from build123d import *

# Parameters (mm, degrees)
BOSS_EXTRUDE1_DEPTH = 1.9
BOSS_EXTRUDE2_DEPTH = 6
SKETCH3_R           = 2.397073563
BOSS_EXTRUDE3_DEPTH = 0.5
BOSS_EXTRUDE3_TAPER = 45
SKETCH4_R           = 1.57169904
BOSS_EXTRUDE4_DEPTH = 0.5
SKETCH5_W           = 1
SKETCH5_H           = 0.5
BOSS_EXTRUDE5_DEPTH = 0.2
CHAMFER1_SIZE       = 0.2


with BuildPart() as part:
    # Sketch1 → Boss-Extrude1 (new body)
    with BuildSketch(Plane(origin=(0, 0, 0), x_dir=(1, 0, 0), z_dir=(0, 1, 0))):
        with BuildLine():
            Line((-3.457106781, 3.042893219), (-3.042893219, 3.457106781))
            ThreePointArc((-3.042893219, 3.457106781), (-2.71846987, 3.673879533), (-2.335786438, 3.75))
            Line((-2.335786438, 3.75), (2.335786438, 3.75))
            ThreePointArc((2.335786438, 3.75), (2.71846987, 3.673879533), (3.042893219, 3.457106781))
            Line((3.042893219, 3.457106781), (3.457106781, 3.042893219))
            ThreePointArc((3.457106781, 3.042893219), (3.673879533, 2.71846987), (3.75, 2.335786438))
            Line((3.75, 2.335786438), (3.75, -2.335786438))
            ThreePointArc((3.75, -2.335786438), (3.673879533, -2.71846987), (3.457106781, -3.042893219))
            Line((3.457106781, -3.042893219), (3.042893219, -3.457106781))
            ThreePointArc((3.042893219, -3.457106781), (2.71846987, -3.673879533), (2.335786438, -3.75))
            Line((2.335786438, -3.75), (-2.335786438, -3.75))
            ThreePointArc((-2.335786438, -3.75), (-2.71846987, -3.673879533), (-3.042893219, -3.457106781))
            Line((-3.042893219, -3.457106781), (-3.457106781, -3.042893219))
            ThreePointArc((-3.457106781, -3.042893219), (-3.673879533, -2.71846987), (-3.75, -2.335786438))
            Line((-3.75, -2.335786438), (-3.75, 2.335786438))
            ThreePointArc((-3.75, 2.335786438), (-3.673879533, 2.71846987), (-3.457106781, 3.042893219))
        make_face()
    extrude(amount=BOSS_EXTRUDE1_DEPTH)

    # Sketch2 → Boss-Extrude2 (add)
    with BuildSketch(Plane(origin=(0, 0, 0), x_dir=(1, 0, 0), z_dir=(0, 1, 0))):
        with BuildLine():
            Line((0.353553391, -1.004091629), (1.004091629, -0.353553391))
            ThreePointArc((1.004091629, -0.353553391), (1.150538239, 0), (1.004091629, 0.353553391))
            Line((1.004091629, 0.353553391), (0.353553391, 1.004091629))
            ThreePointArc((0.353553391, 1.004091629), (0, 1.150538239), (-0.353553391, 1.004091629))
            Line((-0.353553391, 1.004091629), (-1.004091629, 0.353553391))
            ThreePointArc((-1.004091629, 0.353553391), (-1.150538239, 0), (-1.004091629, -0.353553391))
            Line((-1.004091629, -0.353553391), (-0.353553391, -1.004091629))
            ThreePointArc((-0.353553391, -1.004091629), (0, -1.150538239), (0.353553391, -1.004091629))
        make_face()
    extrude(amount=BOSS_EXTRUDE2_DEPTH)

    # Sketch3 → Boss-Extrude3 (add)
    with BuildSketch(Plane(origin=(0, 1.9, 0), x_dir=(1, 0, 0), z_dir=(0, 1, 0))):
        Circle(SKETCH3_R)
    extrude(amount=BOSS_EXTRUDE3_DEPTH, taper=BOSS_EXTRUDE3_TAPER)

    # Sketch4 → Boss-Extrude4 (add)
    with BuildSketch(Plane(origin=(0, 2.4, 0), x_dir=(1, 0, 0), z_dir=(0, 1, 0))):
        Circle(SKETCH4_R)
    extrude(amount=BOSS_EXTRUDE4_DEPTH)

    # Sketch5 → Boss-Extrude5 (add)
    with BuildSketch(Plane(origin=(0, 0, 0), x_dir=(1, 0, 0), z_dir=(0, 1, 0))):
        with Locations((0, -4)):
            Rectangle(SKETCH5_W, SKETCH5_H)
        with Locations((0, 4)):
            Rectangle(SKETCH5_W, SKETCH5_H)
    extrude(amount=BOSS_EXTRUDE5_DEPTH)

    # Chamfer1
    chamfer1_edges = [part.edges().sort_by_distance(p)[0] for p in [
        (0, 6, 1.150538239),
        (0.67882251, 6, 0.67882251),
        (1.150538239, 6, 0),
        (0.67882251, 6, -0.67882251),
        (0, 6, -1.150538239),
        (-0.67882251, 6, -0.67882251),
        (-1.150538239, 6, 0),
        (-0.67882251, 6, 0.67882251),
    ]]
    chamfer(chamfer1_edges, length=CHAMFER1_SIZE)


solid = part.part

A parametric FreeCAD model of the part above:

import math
import FreeCAD as App
import Part
import Sketcher
from FreeCAD import Vector
Q = App.Units.Quantity


def edges_at(feature, points):
    """Names of the edges that pass closest to the given points."""
    edges = feature.Shape.Edges
    near = lambda p: min(range(len(edges)), key=lambda i: edges[i].distToShape(Part.Vertex(*p))[0])
    return sorted({f"Edge{near(p) + 1}" for p in points})


def add_polygon(sketch, points):
    """Adds a closed chain of lines whose ends are joined by coincident constraints."""
    first, n = sketch.GeometryCount, len(points)
    for a, b in zip(points, points[1:] + points[:1]):
        sketch.addGeometry(Part.LineSegment(App.Vector(*a, 0), App.Vector(*b, 0)), False)
    for i in range(n):
        sketch.addConstraint(Sketcher.Constraint("Coincident", first + i, 2, first + (i + 1) % n, 1))

doc = App.newDocument("Part")
body = doc.addObject("PartDesign::Body", "Body")

sketch1 = body.newObject("Sketcher::SketchObject", "Sketch")
sketch1.AttachmentSupport = (doc.getObject("XZ_Plane"), [""])
sketch1.MapMode = "FlatFace"
sketch1.addGeometry([
    Part.LineSegment(Vector(-3.042893, -3.457107, 0), Vector(-3.457107, -3.042893, 0)),
    Part.ArcOfCircle(Part.Circle(Vector(-2.75, -2.335786, 0), Vector(0, 0, 1), 1), math.radians(180), math.radians(225)),
    Part.LineSegment(Vector(-3.75, -2.335786, 0), Vector(-3.75, 2.335786, 0)),
    Part.ArcOfCircle(Part.Circle(Vector(-2.75, 2.335786, 0), Vector(0, 0, 1), 1), math.radians(135), math.radians(180)),
    Part.LineSegment(Vector(-3.457107, 3.042893, 0), Vector(-3.042893, 3.457107, 0)),
    Part.ArcOfCircle(Part.Circle(Vector(-2.335786, 2.75, 0), Vector(0, 0, 1), 1), math.radians(90), math.radians(135)),
    Part.LineSegment(Vector(-2.335786, 3.75, 0), Vector(2.335786, 3.75, 0)),
    Part.ArcOfCircle(Part.Circle(Vector(2.335786, 2.75, 0), Vector(0, 0, 1), 1), math.radians(45), math.radians(90)),
    Part.LineSegment(Vector(3.042893, 3.457107, 0), Vector(3.457107, 3.042893, 0)),
    Part.ArcOfCircle(Part.Circle(Vector(2.75, 2.335786, 0), Vector(0, 0, 1), 1), math.radians(0), math.radians(45)),
    Part.LineSegment(Vector(3.75, 2.335786, 0), Vector(3.75, -2.335786, 0)),
    Part.ArcOfCircle(Part.Circle(Vector(2.75, -2.335786, 0), Vector(0, 0, 1), 1), math.radians(-45), math.radians(0)),
    Part.LineSegment(Vector(3.457107, -3.042893, 0), Vector(3.042893, -3.457107, 0)),
    Part.ArcOfCircle(Part.Circle(Vector(2.335786, -2.75, 0), Vector(0, 0, 1), 1), math.radians(-90), math.radians(-45)),
    Part.LineSegment(Vector(2.335786, -3.75, 0), Vector(-2.335786, -3.75, 0)),
    Part.ArcOfCircle(Part.Circle(Vector(-2.335786, -2.75, 0), Vector(0, 0, 1), 1), math.radians(-135), math.radians(-90)),
], False)
sketch1.addConstraint([
    Sketcher.Constraint("Tangent", 0, 2, 1, 2),
    Sketcher.Constraint("Tangent", 1, 1, 2, 1),
    Sketcher.Constraint("Tangent", 2, 2, 3, 2),
    Sketcher.Constraint("Tangent", 3, 1, 4, 1),
    Sketcher.Constraint("Tangent", 4, 2, 5, 2),
    Sketcher.Constraint("Tangent", 5, 1, 6, 1),
    Sketcher.Constraint("Tangent", 6, 2, 7, 2),
    Sketcher.Constraint("Tangent", 7, 1, 8, 1),
    Sketcher.Constraint("Tangent", 8, 2, 9, 2),
    Sketcher.Constraint("Tangent", 9, 1, 10, 1),
    Sketcher.Constraint("Tangent", 10, 2, 11, 2),
    Sketcher.Constraint("Tangent", 11, 1, 12, 1),
    Sketcher.Constraint("Tangent", 12, 2, 13, 2),
    Sketcher.Constraint("Tangent", 13, 1, 14, 1),
    Sketcher.Constraint("Tangent", 14, 2, 15, 2),
    Sketcher.Constraint("Tangent", 15, 1, 0, 1),
    Sketcher.Constraint("Vertical", 2),
    Sketcher.Constraint("Horizontal", 6),
    Sketcher.Constraint("Vertical", 10),
    Sketcher.Constraint("Horizontal", 14),
    Sketcher.Constraint("Equal", 1, 3),
    Sketcher.Constraint("Equal", 3, 5),
    Sketcher.Constraint("Equal", 5, 7),
    Sketcher.Constraint("Equal", 7, 9),
    Sketcher.Constraint("Equal", 9, 11),
    Sketcher.Constraint("Equal", 11, 13),
    Sketcher.Constraint("Equal", 13, 15),
    Sketcher.Constraint("Symmetric", 1, 3, 9, 3, -1, 1),
    Sketcher.Constraint("Symmetric", 5, 3, 13, 3, -1, 1),
    Sketcher.Constraint("Symmetric", 4, 2, 7, 1, -2),
    Sketcher.Constraint("Symmetric", 0, 2, 11, 1, -2),
    Sketcher.Constraint("Perpendicular", 0, 4),
    Sketcher.Constraint("Equal", 14, 2),
    Sketcher.Constraint("Radius", 1, Q("1 mm")),
    Sketcher.Constraint("DistanceX", 3, 3, 9, 3, Q("5.5 mm")),
    Sketcher.Constraint("DistanceX", 6, 1, 6, 2, Q("4.671573 mm")),
])
pad1 = body.newObject("PartDesign::Pad", "Pad")
pad1.Profile = sketch1
pad1.Length = 1.9
pad1.Reversed = True

sketch2 = body.newObject("Sketcher::SketchObject", "Sketch001")
sketch2.AttachmentSupport = (doc.getObject("XZ_Plane"), [""])
sketch2.MapMode = "FlatFace"
sketch2.addGeometry([
    Part.LineSegment(Vector(0.353553, 1.004092, 0), Vector(1.004092, 0.353553, 0)),
    Part.ArcOfCircle(Part.Circle(Vector(0.650538, 0, 0), Vector(0, 0, 1), 0.5), math.radians(-45), math.radians(45)),
    Part.LineSegment(Vector(1.004092, -0.353553, 0), Vector(0.353553, -1.004092, 0)),
    Part.ArcOfCircle(Part.Circle(Vector(0, -0.650538, 0), Vector(0, 0, 1), 0.5), math.radians(-135), math.radians(-45)),
    Part.LineSegment(Vector(-0.353553, -1.004092, 0), Vector(-1.004092, -0.353553, 0)),
    Part.ArcOfCircle(Part.Circle(Vector(-0.650538, 0, 0), Vector(0, 0, 1), 0.5), math.radians(135), math.radians(225)),
    Part.LineSegment(Vector(-1.004092, 0.353553, 0), Vector(-0.353553, 1.004092, 0)),
    Part.ArcOfCircle(Part.Circle(Vector(0, 0.650538, 0), Vector(0, 0, 1), 0.5), math.radians(45), math.radians(135)),
], False)
sketch2.addConstraint([
    Sketcher.Constraint("Tangent", 0, 2, 1, 2),
    Sketcher.Constraint("Tangent", 1, 1, 2, 1),
    Sketcher.Constraint("Tangent", 2, 2, 3, 2),
    Sketcher.Constraint("Tangent", 3, 1, 4, 1),
    Sketcher.Constraint("Tangent", 4, 2, 5, 2),
    Sketcher.Constraint("Tangent", 5, 1, 6, 1),
    Sketcher.Constraint("Tangent", 6, 2, 7, 2),
    Sketcher.Constraint("Tangent", 7, 1, 0, 1),
    Sketcher.Constraint("Equal", 1, 3),
    Sketcher.Constraint("Equal", 3, 5),
    Sketcher.Constraint("Equal", 5, 7),
    Sketcher.Constraint("Symmetric", 1, 3, 5, 3, -1, 1),
    Sketcher.Constraint("Symmetric", 3, 3, 7, 3, -1, 1),
    Sketcher.Constraint("Symmetric", 2, 2, 3, 1, -2),
    Sketcher.Constraint("Perpendicular", 0, 2),
    Sketcher.Constraint("Radius", 1, Q("0.5 mm")),
    Sketcher.Constraint("Distance", 0, Q("0.92 mm")),
])
pad2 = body.newObject("PartDesign::Pad", "Pad001")
pad2.Profile = sketch2
pad2.Length = 6
pad2.Reversed = True

sketch3 = body.newObject("Sketcher::SketchObject", "Sketch002")
sketch3.AttachmentSupport = (doc.getObject("XZ_Plane"), [""])
sketch3.MapMode = "FlatFace"
sketch3.AttachmentOffset = App.Placement(Vector(0, 0, -1.9), App.Rotation())
sketch3.addGeometry(Part.Circle(Vector(0, 0, 0), Vector(0, 0, 1), 2.397074), False)
sketch3.addConstraint([
    Sketcher.Constraint("Coincident", 0, 3, -1, 1),
    Sketcher.Constraint("Diameter", 0, Q("4.794147 mm")),
])
pad3 = body.newObject("PartDesign::Pad", "Pad002")
pad3.Profile = sketch3
pad3.Length = 0.5
pad3.Reversed = True
pad3.TaperAngle = -45

sketch4 = body.newObject("Sketcher::SketchObject", "Sketch003")
sketch4.AttachmentSupport = (doc.getObject("XZ_Plane"), [""])
sketch4.MapMode = "FlatFace"
sketch4.AttachmentOffset = App.Placement(Vector(0, 0, -2.4), App.Rotation())
sketch4.addGeometry(Part.Circle(Vector(0, 0, 0), Vector(0, 0, 1), 1.571699), False)
sketch4.addConstraint([
    Sketcher.Constraint("Coincident", 0, 3, -1, 1),
    Sketcher.Constraint("Diameter", 0, Q("3.143398 mm")),
])
pad4 = body.newObject("PartDesign::Pad", "Pad003")
pad4.Profile = sketch4
pad4.Length = 0.5
pad4.Reversed = True

sketch5 = body.newObject("Sketcher::SketchObject", "Sketch004")
sketch5.AttachmentSupport = (doc.getObject("XZ_Plane"), [""])
sketch5.MapMode = "FlatFace"
add_polygon(sketch5, [(-0.5, 3.75), (-0.5, 4.25), (0.5, 4.25), (0.5, 3.75)])
add_polygon(sketch5, [(-0.5, -4.25), (-0.5, -3.75), (0.5, -3.75), (0.5, -4.25)])
sketch5.addConstraint([
    Sketcher.Constraint("Vertical", 0),
    Sketcher.Constraint("Horizontal", 1),
    Sketcher.Constraint("Vertical", 2),
    Sketcher.Constraint("Horizontal", 3),
    Sketcher.Constraint("Vertical", 4),
    Sketcher.Constraint("Horizontal", 5),
    Sketcher.Constraint("Vertical", 6),
    Sketcher.Constraint("Horizontal", 7),
    Sketcher.Constraint("Symmetric", 2, 2, 4, 2, -1, 1),
    Sketcher.Constraint("Symmetric", 0, 2, 6, 2, -1, 1),
    Sketcher.Constraint("Vertical", 3, 2, 4, 2),
    Sketcher.Constraint("DistanceX", 1, 1, 1, 2, Q("1 mm")),
    Sketcher.Constraint("DistanceY", 0, 1, 0, 2, Q("0.5 mm")),
    Sketcher.Constraint("DistanceY", 4, 2, 0, 2, Q("8 mm")),
])
pad5 = body.newObject("PartDesign::Pad", "Pad004")
pad5.Profile = sketch5
pad5.Length = 0.2
pad5.Reversed = True
doc.recompute()

chamfer = body.newObject("PartDesign::Chamfer", "Chamfer")
chamfer.Base = (pad5, edges_at(pad5, [
    (0, 6, 1.151),
    (0.679, 6, 0.679),
    (1.151, 6, 0),
    (0.679, 6, -0.679),
    (0, 6, -1.151),
    (-0.679, 6, -0.679),
    (-1.151, 6, 0),
    (-0.679, 6, 0.679),
]))
chamfer.Size = 0.2

doc.recompute()
